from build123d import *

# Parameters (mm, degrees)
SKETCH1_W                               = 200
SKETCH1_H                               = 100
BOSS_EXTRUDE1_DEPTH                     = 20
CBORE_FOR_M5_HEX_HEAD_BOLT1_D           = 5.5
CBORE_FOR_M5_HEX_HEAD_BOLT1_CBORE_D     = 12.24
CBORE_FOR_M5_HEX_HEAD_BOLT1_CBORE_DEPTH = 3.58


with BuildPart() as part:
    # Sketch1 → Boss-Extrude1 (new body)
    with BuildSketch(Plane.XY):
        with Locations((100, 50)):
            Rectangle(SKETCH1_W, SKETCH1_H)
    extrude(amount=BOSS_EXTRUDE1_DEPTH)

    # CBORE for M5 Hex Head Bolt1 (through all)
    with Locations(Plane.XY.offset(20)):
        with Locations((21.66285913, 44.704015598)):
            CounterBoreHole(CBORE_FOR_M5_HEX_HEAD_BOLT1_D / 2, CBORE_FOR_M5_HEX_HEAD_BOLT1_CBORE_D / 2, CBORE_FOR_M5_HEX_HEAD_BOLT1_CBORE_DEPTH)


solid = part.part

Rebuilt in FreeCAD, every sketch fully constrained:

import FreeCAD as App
import Part
import Sketcher
from FreeCAD import Vector
Q = App.Units.Quantity


def add_polygon(sketch, points):
    """Adds a closed chain of lines whose ends are joined by coincident constraints."""
    first, n = sketch.GeometryCount, len(points)
    for a, b in zip(points, points[1:] + points[:1]):
        sketch.addGeometry(Part.LineSegment(App.Vector(*a, 0), App.Vector(*b, 0)), False)
    for i in range(n):
        sketch.addConstraint(Sketcher.Constraint("Coincident", first + i, 2, first + (i + 1) % n, 1))

doc = App.newDocument("Part")
body = doc.addObject("PartDesign::Body", "Body")

sketch1 = doc.addObject("Sketcher::SketchObject", "Sketch")
body.addObject(sketch1)
sketch1.AttachmentSupport = (doc.XY_Plane, [""])
sketch1.MapMode = "FlatFace"
add_polygon(sketch1, [(0, 100), (0, 0), (200, 0), (200, 100)])
sketch1.addConstraint(Sketcher.Constraint("Vertical", 0))
sketch1.addConstraint(Sketcher.Constraint("Horizontal", 1))
sketch1.addConstraint(Sketcher.Constraint("Vertical", 2))
sketch1.addConstraint(Sketcher.Constraint("Horizontal", 3))
sketch1.addConstraint(Sketcher.Constraint("Coincident", 0, 2, -1, 1))
sketch1.addConstraint(Sketcher.Constraint("DistanceX", 1, 1, 1, 2, Q("200 mm")))
sketch1.addConstraint(Sketcher.Constraint("DistanceY", 0, 2, 0, 1, Q("100 mm")))
pad1 = doc.addObject("PartDesign::Pad", "Pad")
body.addObject(pad1)
pad1.Profile = sketch1
pad1.Length = 20

sketch2 = doc.addObject("Sketcher::SketchObject", "Sketch001")
body.addObject(sketch2)
sketch2.AttachmentSupport = (doc.XY_Plane, [""])
sketch2.MapMode = "FlatFace"
sketch2.AttachmentOffset = App.Placement(Vector(0, 0, 20), App.Rotation())
sketch2.addGeometry(Part.Circle(Vector(21.662859, 44.704016, 0), Vector(0, 0, 1), 2.75), False)
sketch2.addConstraint(Sketcher.Constraint("Diameter", 0, Q("5.5 mm")))
sketch2.addConstraint(Sketcher.Constraint("DistanceX", -1, 1, 0, 3, Q("21.662859 mm")))
sketch2.addConstraint(Sketcher.Constraint("DistanceY", -1, 1, 0, 3, Q("44.704016 mm")))
doc.recompute()
hole = doc.addObject("PartDesign::Hole", "Hole")
body.addObject(hole)
hole.Profile = sketch2
hole.ThreadType = "None"
hole.Diameter = 5.5
hole.DepthType = "ThroughAll"
hole.HoleCutType = "Counterbore"
hole.HoleCutDiameter = 12.24
hole.HoleCutDepth = 3.58

doc.recompute()
